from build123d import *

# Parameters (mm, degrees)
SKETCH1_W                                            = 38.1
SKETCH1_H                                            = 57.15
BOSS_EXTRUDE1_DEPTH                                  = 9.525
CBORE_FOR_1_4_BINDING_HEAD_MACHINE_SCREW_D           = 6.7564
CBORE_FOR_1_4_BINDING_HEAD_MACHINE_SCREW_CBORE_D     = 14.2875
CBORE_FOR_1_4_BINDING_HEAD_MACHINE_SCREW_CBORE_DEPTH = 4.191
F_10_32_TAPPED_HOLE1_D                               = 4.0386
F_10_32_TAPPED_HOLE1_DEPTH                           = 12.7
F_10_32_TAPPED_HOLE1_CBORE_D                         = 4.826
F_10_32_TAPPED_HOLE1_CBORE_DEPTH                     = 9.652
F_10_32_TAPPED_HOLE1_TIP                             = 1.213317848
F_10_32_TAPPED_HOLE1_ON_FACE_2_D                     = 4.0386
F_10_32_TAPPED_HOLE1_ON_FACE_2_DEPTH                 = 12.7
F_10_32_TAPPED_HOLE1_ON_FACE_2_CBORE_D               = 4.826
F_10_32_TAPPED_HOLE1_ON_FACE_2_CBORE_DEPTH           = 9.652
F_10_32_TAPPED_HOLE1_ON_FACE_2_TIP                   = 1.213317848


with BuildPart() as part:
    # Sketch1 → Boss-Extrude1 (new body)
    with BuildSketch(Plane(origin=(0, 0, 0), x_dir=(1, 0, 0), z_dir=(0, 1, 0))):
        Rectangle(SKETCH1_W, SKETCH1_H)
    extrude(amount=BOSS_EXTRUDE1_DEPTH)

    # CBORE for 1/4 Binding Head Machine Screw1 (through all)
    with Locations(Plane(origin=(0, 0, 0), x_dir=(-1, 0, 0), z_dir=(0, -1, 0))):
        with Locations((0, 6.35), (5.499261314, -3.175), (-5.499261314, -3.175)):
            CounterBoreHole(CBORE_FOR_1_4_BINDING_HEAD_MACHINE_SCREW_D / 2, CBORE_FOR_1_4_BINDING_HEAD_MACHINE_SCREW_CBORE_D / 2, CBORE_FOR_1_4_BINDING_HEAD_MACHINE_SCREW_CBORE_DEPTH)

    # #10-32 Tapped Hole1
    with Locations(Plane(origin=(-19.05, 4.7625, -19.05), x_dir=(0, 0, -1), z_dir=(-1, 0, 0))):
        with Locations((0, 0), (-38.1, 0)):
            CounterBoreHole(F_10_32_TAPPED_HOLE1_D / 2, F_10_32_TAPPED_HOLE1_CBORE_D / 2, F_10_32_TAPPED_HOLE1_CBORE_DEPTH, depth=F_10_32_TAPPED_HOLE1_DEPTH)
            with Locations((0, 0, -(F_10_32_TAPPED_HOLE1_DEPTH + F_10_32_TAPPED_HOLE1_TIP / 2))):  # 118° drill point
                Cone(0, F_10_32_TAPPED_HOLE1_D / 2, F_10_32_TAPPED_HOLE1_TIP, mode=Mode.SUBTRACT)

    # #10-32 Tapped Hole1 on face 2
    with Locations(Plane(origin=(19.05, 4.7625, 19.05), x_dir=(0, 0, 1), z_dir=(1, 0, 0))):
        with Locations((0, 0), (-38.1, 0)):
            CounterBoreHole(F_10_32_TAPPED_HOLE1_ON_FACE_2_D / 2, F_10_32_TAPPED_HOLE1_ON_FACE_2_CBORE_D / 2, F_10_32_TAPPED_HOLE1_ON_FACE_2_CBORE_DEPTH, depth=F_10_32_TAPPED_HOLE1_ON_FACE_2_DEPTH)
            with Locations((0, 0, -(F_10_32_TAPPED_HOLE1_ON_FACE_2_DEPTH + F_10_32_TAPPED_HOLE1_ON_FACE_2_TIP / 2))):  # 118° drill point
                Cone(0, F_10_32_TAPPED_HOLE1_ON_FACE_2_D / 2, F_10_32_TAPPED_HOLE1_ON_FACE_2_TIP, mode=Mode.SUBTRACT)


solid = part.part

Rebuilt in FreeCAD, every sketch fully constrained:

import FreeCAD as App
import Part
import Sketcher

V = App.Vector
Q = App.Units.Quantity

doc = App.newDocument("Part")
body = doc.addObject("PartDesign::Body", "Body")

# Sketch on XZ plane
sketch1 = body.newObject("Sketcher::SketchObject", "Sketch")
sketch1.AttachmentSupport = (doc.getObject("XZ_Plane"), [""])
sketch1.MapMode = "FlatFace"
sketch1.addGeometry([
    Part.LineSegment(V(-19, -29, 0), V(-19, 29, 0)),
    Part.LineSegment(V(-19, 29, 0), V(19, 29, 0)),
    Part.LineSegment(V(19, 29, 0), V(19, -29, 0)),
    Part.LineSegment(V(19, -29, 0), V(-19, -29, 0)),
], False)
sketch1.addConstraint([
    Sketcher.Constraint("Coincident", 0, 2, 1, 1),
    Sketcher.Constraint("Coincident", 1, 2, 2, 1),
    Sketcher.Constraint("Coincident", 2, 2, 3, 1),
    Sketcher.Constraint("Coincident", 3, 2, 0, 1),
    Sketcher.Constraint("Vertical", 0),
    Sketcher.Constraint("Horizontal", 1),
    Sketcher.Constraint("Vertical", 2),
    Sketcher.Constraint("Horizontal", 3),
    Sketcher.Constraint("Symmetric", 0, 2, 2, 2, -1, 1),
    Sketcher.Constraint("DistanceX", 1, 1, 1, 2, Q("1.5 in")),
    Sketcher.Constraint("DistanceY", 0, 1, 0, 2, Q("2.25 in")),
])
pad1 = body.newObject("PartDesign::Pad", "Pad")
pad1.Profile = sketch1
pad1.Length = Q("0.375 in")
pad1.Reversed = True

# Sketch on XZ plane
sketch2 = body.newObject("Sketcher::SketchObject", "Sketch001")
sketch2.AttachmentSupport = (doc.getObject("XZ_Plane"), [""])
sketch2.MapMode = "FlatFace"
sketch2.addGeometry([
    Part.Circle(V(0, -6.3, 0), V(0, 0, 1), 3.4),
    Part.Circle(V(-5.5, 3.2, 0), V(0, 0, 1), 3.4),
    Part.Circle(V(5.5, 3.2, 0), V(0, 0, 1), 3.4),
], False)
sketch2.addConstraint([
    Sketcher.Constraint("Equal", 0, 1),
    Sketcher.Constraint("Equal", 1, 2),
    Sketcher.Constraint("Symmetric", 1, 3, 2, 3, -2),
    Sketcher.Constraint("PointOnObject", 0, 3, -2),
    Sketcher.Constraint("Diameter", 0, Q("0.266 in")),
    Sketcher.Constraint("DistanceY", 0, 3, -1, 1, Q("0.25 in")),
    Sketcher.Constraint("DistanceY", -1, 1, 1, 3, Q("0.125 in")),
    Sketcher.Constraint("DistanceX", 1, 3, -1, 1, Q("5.499261 mm")),
])
doc.recompute()
hole = body.newObject("PartDesign::Hole", "Hole")
hole.Profile = sketch2
hole.ThreadType = "None"
hole.Diameter = Q("0.266 in")
hole.DepthType = "ThroughAll"
hole.HoleCutType = "Counterbore"
hole.HoleCutDiameter = Q("0.5625 in")
hole.HoleCutDepth = Q("0.165 in")

# Sketch on YZ plane
sketch3 = body.newObject("Sketcher::SketchObject", "Sketch002")
sketch3.AttachmentSupport = (doc.getObject("YZ_Plane"), [""])
sketch3.MapMode = "FlatFace"
sketch3.AttachmentOffset = App.Placement(V(0, 0, -0.75 * 25.4), App.Rotation())
sketch3.addGeometry([
    Part.Circle(V(4.8, -19.1, 0), V(0, 0, 1), 2),
    Part.Circle(V(4.8, 19.1, 0), V(0, 0, 1), 2),
], False)
sketch3.addConstraint([
    Sketcher.Constraint("Equal", 0, 1),
    Sketcher.Constraint("Symmetric", 0, 3, 1, 3, -1),
    Sketcher.Constraint("Diameter", 0, Q("0.159 in")),
    Sketcher.Constraint("DistanceY", 0, 3, 1, 3, Q("1.5 in")),
    Sketcher.Constraint("DistanceX", -1, 1, 0, 3, Q("0.1875 in")),
])
doc.recompute()
hole2 = body.newObject("PartDesign::Hole", "Hole001")
hole2.Profile = sketch3
hole2.ThreadType = "None"
hole2.Diameter = Q("0.159 in")
hole2.DepthType = "Dimension"
hole2.Depth = Q("0.5 in")
hole2.DrillPoint = "Angled"
hole2.DrillPointAngle = 118
hole2.HoleCutType = "Counterbore"
hole2.HoleCutDiameter = Q("0.19 in")
hole2.HoleCutDepth = Q("0.38 in")
hole2.Reversed = True

# Sketch on YZ plane
sketch4 = body.newObject("Sketcher::SketchObject", "Sketch003")
sketch4.AttachmentSupport = (doc.getObject("YZ_Plane"), [""])
sketch4.MapMode = "FlatFace"
sketch4.AttachmentOffset = App.Placement(V(0, 0, 0.75 * 25.4), App.Rotation())
sketch4.addGeometry([
    Part.Circle(V(4.8, 19.1, 0), V(0, 0, 1), 2),
    Part.Circle(V(4.8, -19.1, 0), V(0, 0, 1), 2),
], False)
sketch4.addConstraint([
    Sketcher.Constraint("Equal", 0, 1),
    Sketcher.Constraint("Symmetric", 0, 3, 1, 3, -1),
    Sketcher.Constraint("Diameter", 0, Q("0.159 in")),
    Sketcher.Constraint("DistanceY", 1, 3, 0, 3, Q("1.5 in")),
    Sketcher.Constraint("DistanceX", -1, 1, 0, 3, Q("0.1875 in")),
])
doc.recompute()
hole3 = body.newObject("PartDesign::Hole", "Hole002")
hole3.Profile = sketch4
hole3.ThreadType = "None"
hole3.Diameter = Q("0.159 in")
hole3.DepthType = "Dimension"
hole3.Depth = Q("0.5 in")
hole3.DrillPoint = "Angled"
hole3.DrillPointAngle = 118
hole3.HoleCutType = "Counterbore"
hole3.HoleCutDiameter = Q("0.19 in")
hole3.HoleCutDepth = Q("0.38 in")

doc.recompute()
